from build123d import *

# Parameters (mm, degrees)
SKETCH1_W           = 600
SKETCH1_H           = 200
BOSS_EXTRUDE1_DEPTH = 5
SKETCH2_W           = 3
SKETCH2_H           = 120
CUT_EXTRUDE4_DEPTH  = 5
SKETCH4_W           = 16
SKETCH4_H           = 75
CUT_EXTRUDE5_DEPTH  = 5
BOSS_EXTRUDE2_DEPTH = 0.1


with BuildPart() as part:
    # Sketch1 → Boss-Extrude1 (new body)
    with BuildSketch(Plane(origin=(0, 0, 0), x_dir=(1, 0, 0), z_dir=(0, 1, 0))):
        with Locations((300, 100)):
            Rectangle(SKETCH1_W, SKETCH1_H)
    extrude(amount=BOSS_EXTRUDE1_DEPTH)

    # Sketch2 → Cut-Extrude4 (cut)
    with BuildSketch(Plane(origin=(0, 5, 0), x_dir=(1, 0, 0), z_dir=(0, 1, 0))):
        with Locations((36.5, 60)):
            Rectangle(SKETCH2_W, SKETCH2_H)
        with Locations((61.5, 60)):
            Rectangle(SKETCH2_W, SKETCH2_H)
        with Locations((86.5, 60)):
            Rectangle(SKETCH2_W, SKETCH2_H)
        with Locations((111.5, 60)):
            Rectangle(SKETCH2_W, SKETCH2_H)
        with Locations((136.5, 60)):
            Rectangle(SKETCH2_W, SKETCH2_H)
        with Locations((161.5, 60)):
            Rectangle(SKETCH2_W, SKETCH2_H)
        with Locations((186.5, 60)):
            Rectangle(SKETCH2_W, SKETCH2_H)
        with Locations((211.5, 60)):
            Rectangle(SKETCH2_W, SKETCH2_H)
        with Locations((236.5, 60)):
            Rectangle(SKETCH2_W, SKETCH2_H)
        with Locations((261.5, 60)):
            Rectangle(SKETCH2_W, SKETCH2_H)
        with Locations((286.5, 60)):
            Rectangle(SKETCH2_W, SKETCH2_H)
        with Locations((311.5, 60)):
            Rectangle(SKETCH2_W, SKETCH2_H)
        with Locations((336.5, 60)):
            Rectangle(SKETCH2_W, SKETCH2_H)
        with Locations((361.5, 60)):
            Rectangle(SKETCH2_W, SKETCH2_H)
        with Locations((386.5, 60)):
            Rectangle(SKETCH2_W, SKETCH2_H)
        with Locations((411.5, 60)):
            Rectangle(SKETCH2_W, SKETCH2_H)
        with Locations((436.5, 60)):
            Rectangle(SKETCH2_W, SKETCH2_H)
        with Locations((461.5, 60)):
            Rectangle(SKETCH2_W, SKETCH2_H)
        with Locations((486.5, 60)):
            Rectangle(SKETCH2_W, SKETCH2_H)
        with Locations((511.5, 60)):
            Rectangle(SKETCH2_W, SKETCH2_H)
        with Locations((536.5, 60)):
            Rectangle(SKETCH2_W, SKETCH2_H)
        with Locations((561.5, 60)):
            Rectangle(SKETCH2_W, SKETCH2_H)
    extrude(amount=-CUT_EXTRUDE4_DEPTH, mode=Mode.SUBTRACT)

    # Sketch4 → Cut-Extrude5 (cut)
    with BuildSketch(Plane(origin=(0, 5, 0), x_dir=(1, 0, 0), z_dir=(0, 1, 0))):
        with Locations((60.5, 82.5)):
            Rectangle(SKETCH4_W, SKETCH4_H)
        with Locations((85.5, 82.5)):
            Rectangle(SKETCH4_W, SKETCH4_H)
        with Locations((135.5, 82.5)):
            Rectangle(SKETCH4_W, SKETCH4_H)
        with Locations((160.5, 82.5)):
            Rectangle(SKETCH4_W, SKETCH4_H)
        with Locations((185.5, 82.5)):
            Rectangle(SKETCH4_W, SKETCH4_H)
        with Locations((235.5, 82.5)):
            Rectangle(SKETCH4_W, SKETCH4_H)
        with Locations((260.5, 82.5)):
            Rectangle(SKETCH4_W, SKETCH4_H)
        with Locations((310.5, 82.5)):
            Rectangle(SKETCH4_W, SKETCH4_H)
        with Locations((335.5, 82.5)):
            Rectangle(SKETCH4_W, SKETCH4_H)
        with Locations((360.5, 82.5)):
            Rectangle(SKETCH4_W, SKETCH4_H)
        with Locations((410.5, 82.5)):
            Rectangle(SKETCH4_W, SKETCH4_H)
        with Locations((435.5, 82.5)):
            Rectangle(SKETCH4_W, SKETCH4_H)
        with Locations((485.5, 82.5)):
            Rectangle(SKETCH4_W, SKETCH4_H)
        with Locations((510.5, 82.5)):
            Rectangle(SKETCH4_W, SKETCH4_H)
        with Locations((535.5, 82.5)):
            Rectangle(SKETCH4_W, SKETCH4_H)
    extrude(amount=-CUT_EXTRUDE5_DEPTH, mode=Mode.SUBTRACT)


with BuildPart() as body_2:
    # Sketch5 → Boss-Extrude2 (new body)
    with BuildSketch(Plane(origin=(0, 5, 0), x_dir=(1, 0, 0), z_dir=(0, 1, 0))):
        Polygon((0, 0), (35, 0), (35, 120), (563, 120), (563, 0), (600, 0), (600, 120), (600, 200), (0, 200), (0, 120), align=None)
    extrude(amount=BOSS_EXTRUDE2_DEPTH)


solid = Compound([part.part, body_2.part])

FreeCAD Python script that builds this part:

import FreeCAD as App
import Part
import Sketcher


def add_polygon(sketch, points):
    """Adds a closed chain of lines whose ends are joined by coincident constraints."""
    first, n = sketch.GeometryCount, len(points)
    for a, b in zip(points, points[1:] + points[:1]):
        sketch.addGeometry(Part.LineSegment(App.Vector(*a, 0), App.Vector(*b, 0)), False)
    for i in range(n):
        sketch.addConstraint(Sketcher.Constraint("Coincident", first + i, 2, first + (i + 1) % n, 1))

doc = App.newDocument("Part")
body = doc.addObject("PartDesign::Body", "Body")

# Sketch on XZ plane
sketch1 = body.newObject("Sketcher::SketchObject", "Sketch")
sketch1.AttachmentSupport = (doc.getObject("XZ_Plane"), [""])
sketch1.MapMode = "FlatFace"
add_polygon(sketch1, [(0, -200), (0, 0), (600, 0), (600, -200)])  # lines 0-3
sketch1.addConstraint(Sketcher.Constraint("Vertical", 0))
sketch1.addConstraint(Sketcher.Constraint("Horizontal", 1))
sketch1.addConstraint(Sketcher.Constraint("Vertical", 2))
sketch1.addConstraint(Sketcher.Constraint("Horizontal", 3))
sketch1.addConstraint(Sketcher.Constraint("Coincident", 0, 2, -1, 1))
sketch1.addConstraint(Sketcher.Constraint("DistanceX", 1, 1, 1, 2, 600.0))
sketch1.addConstraint(Sketcher.Constraint("DistanceY", 0, 1, 0, 2, 200.0))
pad1 = body.newObject("PartDesign::Pad", "Pad")
pad1.Profile = sketch1
pad1.Length = 5
pad1.Reversed = True

# Sketch on XZ plane
sketch2 = body.newObject("Sketcher::SketchObject", "Sketch001")
sketch2.AttachmentSupport = (doc.getObject("XZ_Plane"), [""])
sketch2.MapMode = "FlatFace"
sketch2.AttachmentOffset = App.Placement(App.Vector(0, 0, -5), App.Rotation())
add_polygon(sketch2, [(35, -120), (35, 0), (38, 0), (38, -120)])  # lines 0-3
add_polygon(sketch2, [(60, -120), (60, 0), (63, 0), (63, -120)])  # lines 4-7
add_polygon(sketch2, [(85, -120), (85, 0), (88, 0), (88, -120)])  # lines 8-11
add_polygon(sketch2, [(110, -120), (110, 0), (113, 0), (113, -120)])  # lines 12-15
add_polygon(sketch2, [(135, -120), (135, 0), (138, 0), (138, -120)])  # lines 16-19
add_polygon(sketch2, [(160, -120), (160, 0), (163, 0), (163, -120)])  # lines 20-23
add_polygon(sketch2, [(185, -120), (185, 0), (188, 0), (188, -120)])  # lines 24-27
add_polygon(sketch2, [(210, -120), (210, 0), (213, 0), (213, -120)])  # lines 28-31
add_polygon(sketch2, [(235, -120), (235, 0), (238, 0), (238, -120)])  # lines 32-35
add_polygon(sketch2, [(260, -120), (260, 0), (263, 0), (263, -120)])  # lines 36-39
add_polygon(sketch2, [(285, -120), (285, 0), (288, 0), (288, -120)])  # lines 40-43
add_polygon(sketch2, [(310, -120), (310, 0), (313, 0), (313, -120)])  # lines 44-47
add_polygon(sketch2, [(335, -120), (335, 0), (338, 0), (338, -120)])  # lines 48-51
add_polygon(sketch2, [(360, -120), (360, 0), (363, 0), (363, -120)])  # lines 52-55
add_polygon(sketch2, [(385, -120), (385, 0), (388, 0), (388, -120)])  # lines 56-59
add_polygon(sketch2, [(410, -120), (410, 0), (413, 0), (413, -120)])  # lines 60-63
add_polygon(sketch2, [(435, -120), (435, 0), (438, 0), (438, -120)])  # lines 64-67
add_polygon(sketch2, [(460, -120), (460, 0), (463, 0), (463, -120)])  # lines 68-71
add_polygon(sketch2, [(485, -120), (485, 0), (488, 0), (488, -120)])  # lines 72-75
add_polygon(sketch2, [(510, -120), (510, 0), (513, 0), (513, -120)])  # lines 76-79
add_polygon(sketch2, [(535, -120), (535, 0), (538, 0), (538, -120)])  # lines 80-83
add_polygon(sketch2, [(560, -120), (560, 0), (563, 0), (563, -120)])  # lines 84-87
sketch2.addConstraint(Sketcher.Constraint("Vertical", 0))
sketch2.addConstraint(Sketcher.Constraint("Horizontal", 1))
sketch2.addConstraint(Sketcher.Constraint("Vertical", 2))
sketch2.addConstraint(Sketcher.Constraint("Horizontal", 3))
sketch2.addConstraint(Sketcher.Constraint("Vertical", 4))
sketch2.addConstraint(Sketcher.Constraint("Horizontal", 5))
sketch2.addConstraint(Sketcher.Constraint("Vertical", 6))
sketch2.addConstraint(Sketcher.Constraint("Horizontal", 7))
sketch2.addConstraint(Sketcher.Constraint("Vertical", 8))
sketch2.addConstraint(Sketcher.Constraint("Horizontal", 9))
sketch2.addConstraint(Sketcher.Constraint("Vertical", 10))
sketch2.addConstraint(Sketcher.Constraint("Horizontal", 11))
sketch2.addConstraint(Sketcher.Constraint("Vertical", 12))
sketch2.addConstraint(Sketcher.Constraint("Horizontal", 13))
sketch2.addConstraint(Sketcher.Constraint("Vertical", 14))
sketch2.addConstraint(Sketcher.Constraint("Horizontal", 15))
sketch2.addConstraint(Sketcher.Constraint("Vertical", 16))
sketch2.addConstraint(Sketcher.Constraint("Horizontal", 17))
sketch2.addConstraint(Sketcher.Constraint("Vertical", 18))
sketch2.addConstraint(Sketcher.Constraint("Horizontal", 19))
sketch2.addConstraint(Sketcher.Constraint("Vertical", 20))
sketch2.addConstraint(Sketcher.Constraint("Horizontal", 21))
sketch2.addConstraint(Sketcher.Constraint("Vertical", 22))
sketch2.addConstraint(Sketcher.Constraint("Horizontal", 23))
sketch2.addConstraint(Sketcher.Constraint("Vertical", 24))
sketch2.addConstraint(Sketcher.Constraint("Horizontal", 25))
sketch2.addConstraint(Sketcher.Constraint("Vertical", 26))
sketch2.addConstraint(Sketcher.Constraint("Horizontal", 27))
sketch2.addConstraint(Sketcher.Constraint("Vertical", 28))
sketch2.addConstraint(Sketcher.Constraint("Horizontal", 29))
sketch2.addConstraint(Sketcher.Constraint("Vertical", 30))
sketch2.addConstraint(Sketcher.Constraint("Horizontal", 31))
sketch2.addConstraint(Sketcher.Constraint("Vertical", 32))
sketch2.addConstraint(Sketcher.Constraint("Horizontal", 33))
sketch2.addConstraint(Sketcher.Constraint("Vertical", 34))
sketch2.addConstraint(Sketcher.Constraint("Horizontal", 35))
sketch2.addConstraint(Sketcher.Constraint("Vertical", 36))
sketch2.addConstraint(Sketcher.Constraint("Horizontal", 37))
sketch2.addConstraint(Sketcher.Constraint("Vertical", 38))
sketch2.addConstraint(Sketcher.Constraint("Horizontal", 39))
sketch2.addConstraint(Sketcher.Constraint("Vertical", 40))
sketch2.addConstraint(Sketcher.Constraint("Horizontal", 41))
sketch2.addConstraint(Sketcher.Constraint("Vertical", 42))
sketch2.addConstraint(Sketcher.Constraint("Horizontal", 43))
sketch2.addConstraint(Sketcher.Constraint("Vertical", 44))
sketch2.addConstraint(Sketcher.Constraint("Horizontal", 45))
sketch2.addConstraint(Sketcher.Constraint("Vertical", 46))
sketch2.addConstraint(Sketcher.Constraint("Horizontal", 47))
sketch2.addConstraint(Sketcher.Constraint("Vertical", 48))
sketch2.addConstraint(Sketcher.Constraint("Horizontal", 49))
sketch2.addConstraint(Sketcher.Constraint("Vertical", 50))
sketch2.addConstraint(Sketcher.Constraint("Horizontal", 51))
sketch2.addConstraint(Sketcher.Constraint("Vertical", 52))
sketch2.addConstraint(Sketcher.Constraint("Horizontal", 53))
sketch2.addConstraint(Sketcher.Constraint("Vertical", 54))
sketch2.addConstraint(Sketcher.Constraint("Horizontal", 55))
sketch2.addConstraint(Sketcher.Constraint("Vertical", 56))
sketch2.addConstraint(Sketcher.Constraint("Horizontal", 57))
sketch2.addConstraint(Sketcher.Constraint("Vertical", 58))
sketch2.addConstraint(Sketcher.Constraint("Horizontal", 59))
sketch2.addConstraint(Sketcher.Constraint("Vertical", 60))
sketch2.addConstraint(Sketcher.Constraint("Horizontal", 61))
sketch2.addConstraint(Sketcher.Constraint("Vertical", 62))
sketch2.addConstraint(Sketcher.Constraint("Horizontal", 63))
sketch2.addConstraint(Sketcher.Constraint("Vertical", 64))
sketch2.addConstraint(Sketcher.Constraint("Horizontal", 65))
sketch2.addConstraint(Sketcher.Constraint("Vertical", 66))
sketch2.addConstraint(Sketcher.Constraint("Horizontal", 67))
sketch2.addConstraint(Sketcher.Constraint("Vertical", 68))
sketch2.addConstraint(Sketcher.Constraint("Horizontal", 69))
sketch2.addConstraint(Sketcher.Constraint("Vertical", 70))
sketch2.addConstraint(Sketcher.Constraint("Horizontal", 71))
sketch2.addConstraint(Sketcher.Constraint("Vertical", 72))
sketch2.addConstraint(Sketcher.Constraint("Horizontal", 73))
sketch2.addConstraint(Sketcher.Constraint("Vertical", 74))
sketch2.addConstraint(Sketcher.Constraint("Horizontal", 75))
sketch2.addConstraint(Sketcher.Constraint("Vertical", 76))
sketch2.addConstraint(Sketcher.Constraint("Horizontal", 77))
sketch2.addConstraint(Sketcher.Constraint("Vertical", 78))
sketch2.addConstraint(Sketcher.Constraint("Horizontal", 79))
sketch2.addConstraint(Sketcher.Constraint("Vertical", 80))
sketch2.addConstraint(Sketcher.Constraint("Horizontal", 81))
sketch2.addConstraint(Sketcher.Constraint("Vertical", 82))
sketch2.addConstraint(Sketcher.Constraint("Horizontal", 83))
sketch2.addConstraint(Sketcher.Constraint("Vertical", 84))
sketch2.addConstraint(Sketcher.Constraint("Horizontal", 85))
sketch2.addConstraint(Sketcher.Constraint("Vertical", 86))
sketch2.addConstraint(Sketcher.Constraint("Horizontal", 87))
sketch2.addConstraint(Sketcher.Constraint("PointOnObject", 0, 2, -1))
sketch2.addConstraint(Sketcher.Constraint("PointOnObject", 4, 2, -1))
sketch2.addConstraint(Sketcher.Constraint("PointOnObject", 8, 2, -1))
sketch2.addConstraint(Sketcher.Constraint("PointOnObject", 12, 2, -1))
sketch2.addConstraint(Sketcher.Constraint("PointOnObject", 16, 2, -1))
sketch2.addConstraint(Sketcher.Constraint("PointOnObject", 20, 2, -1))
sketch2.addConstraint(Sketcher.Constraint("PointOnObject", 24, 2, -1))
sketch2.addConstraint(Sketcher.Constraint("PointOnObject", 28, 2, -1))
sketch2.addConstraint(Sketcher.Constraint("PointOnObject", 32, 2, -1))
sketch2.addConstraint(Sketcher.Constraint("PointOnObject", 36, 2, -1))
sketch2.addConstraint(Sketcher.Constraint("PointOnObject", 40, 2, -1))
sketch2.addConstraint(Sketcher.Constraint("PointOnObject", 44, 2, -1))
sketch2.addConstraint(Sketcher.Constraint("PointOnObject", 48, 2, -1))
sketch2.addConstraint(Sketcher.Constraint("PointOnObject", 52, 2, -1))
sketch2.addConstraint(Sketcher.Constraint("PointOnObject", 56, 2, -1))
sketch2.addConstraint(Sketcher.Constraint("PointOnObject", 60, 2, -1))
sketch2.addConstraint(Sketcher.Constraint("PointOnObject", 64, 2, -1))
sketch2.addConstraint(Sketcher.Constraint("PointOnObject", 68, 2, -1))
sketch2.addConstraint(Sketcher.Constraint("PointOnObject", 72, 2, -1))
sketch2.addConstraint(Sketcher.Constraint("PointOnObject", 76, 2, -1))
sketch2.addConstraint(Sketcher.Constraint("PointOnObject", 80, 2, -1))
sketch2.addConstraint(Sketcher.Constraint("PointOnObject", 84, 2, -1))
sketch2.addConstraint(Sketcher.Constraint("Horizontal", 3, 2, 6, 2))
sketch2.addConstraint(Sketcher.Constraint("Horizontal", 7, 2, 10, 2))
sketch2.addConstraint(Sketcher.Constraint("Horizontal", 11, 2, 14, 2))
sketch2.addConstraint(Sketcher.Constraint("Horizontal", 15, 2, 18, 2))
sketch2.addConstraint(Sketcher.Constraint("Horizontal", 19, 2, 22, 2))
sketch2.addConstraint(Sketcher.Constraint("Horizontal", 23, 2, 26, 2))
sketch2.addConstraint(Sketcher.Constraint("Horizontal", 27, 2, 30, 2))
sketch2.addConstraint(Sketcher.Constraint("Horizontal", 31, 2, 34, 2))
sketch2.addConstraint(Sketcher.Constraint("Horizontal", 35, 2, 38, 2))
sketch2.addConstraint(Sketcher.Constraint("Horizontal", 39, 2, 42, 2))
sketch2.addConstraint(Sketcher.Constraint("Horizontal", 43, 2, 46, 2))
sketch2.addConstraint(Sketcher.Constraint("Horizontal", 47, 2, 50, 2))
sketch2.addConstraint(Sketcher.Constraint("Horizontal", 51, 2, 54, 2))
sketch2.addConstraint(Sketcher.Constraint("Horizontal", 55, 2, 58, 2))
sketch2.addConstraint(Sketcher.Constraint("Horizontal", 59, 2, 62, 2))
sketch2.addConstraint(Sketcher.Constraint("Horizontal", 63, 2, 66, 2))
sketch2.addConstraint(Sketcher.Constraint("Horizontal", 67, 2, 70, 2))
sketch2.addConstraint(Sketcher.Constraint("Horizontal", 71, 2, 74, 2))
sketch2.addConstraint(Sketcher.Constraint("Horizontal", 75, 2, 78, 2))
sketch2.addConstraint(Sketcher.Constraint("Horizontal", 79, 2, 82, 2))
sketch2.addConstraint(Sketcher.Constraint("Horizontal", 83, 2, 86, 2))
sketch2.addConstraint(Sketcher.Constraint("Equal", 3, 5))
sketch2.addConstraint(Sketcher.Constraint("Equal", 7, 9))
sketch2.addConstraint(Sketcher.Constraint("Equal", 11, 13))
sketch2.addConstraint(Sketcher.Constraint("Equal", 15, 17))
sketch2.addConstraint(Sketcher.Constraint("Equal", 19, 21))
sketch2.addConstraint(Sketcher.Constraint("Equal", 23, 25))
sketch2.addConstraint(Sketcher.Constraint("Equal", 27, 29))
sketch2.addConstraint(Sketcher.Constraint("Equal", 31, 33))
sketch2.addConstraint(Sketcher.Constraint("Equal", 35, 37))
sketch2.addConstraint(Sketcher.Constraint("Equal", 39, 41))
sketch2.addConstraint(Sketcher.Constraint("Equal", 43, 45))
sketch2.addConstraint(Sketcher.Constraint("Equal", 47, 49))
sketch2.addConstraint(Sketcher.Constraint("Equal", 51, 53))
sketch2.addConstraint(Sketcher.Constraint("Equal", 55, 57))
sketch2.addConstraint(Sketcher.Constraint("Equal", 59, 61))
sketch2.addConstraint(Sketcher.Constraint("Equal", 63, 65))
sketch2.addConstraint(Sketcher.Constraint("Equal", 67, 69))
sketch2.addConstraint(Sketcher.Constraint("Equal", 71, 73))
sketch2.addConstraint(Sketcher.Constraint("Equal", 75, 77))
sketch2.addConstraint(Sketcher.Constraint("Equal", 79, 81))
sketch2.addConstraint(Sketcher.Constraint("Equal", 83, 85))
sketch2.addConstraint(Sketcher.Constraint("DistanceX", 1, 1, 1, 2, 3.0))
sketch2.addConstraint(Sketcher.Constraint("DistanceY", 0, 1, 0, 2, 120.0))
sketch2.addConstraint(Sketcher.Constraint("DistanceX", -1, 1, 0, 2, 35.0))
sketch2.addConstraint(Sketcher.Constraint("DistanceX", -1, 1, 4, 2, 60.0))
sketch2.addConstraint(Sketcher.Constraint("DistanceX", -1, 1, 8, 2, 85.0))
sketch2.addConstraint(Sketcher.Constraint("DistanceX", -1, 1, 12, 2, 110.0))
sketch2.addConstraint(Sketcher.Constraint("DistanceX", -1, 1, 16, 2, 135.0))
sketch2.addConstraint(Sketcher.Constraint("DistanceX", -1, 1, 20, 2, 160.0))
sketch2.addConstraint(Sketcher.Constraint("DistanceX", -1, 1, 24, 2, 185.0))
sketch2.addConstraint(Sketcher.Constraint("DistanceX", -1, 1, 28, 2, 210.0))
sketch2.addConstraint(Sketcher.Constraint("DistanceX", -1, 1, 32, 2, 235.0))
sketch2.addConstraint(Sketcher.Constraint("DistanceX", -1, 1, 36, 2, 260.0))
sketch2.addConstraint(Sketcher.Constraint("DistanceX", -1, 1, 40, 2, 285.0))
sketch2.addConstraint(Sketcher.Constraint("DistanceX", -1, 1, 44, 2, 310.0))
sketch2.addConstraint(Sketcher.Constraint("DistanceX", -1, 1, 48, 2, 335.0))
sketch2.addConstraint(Sketcher.Constraint("DistanceX", -1, 1, 52, 2, 360.0))
sketch2.addConstraint(Sketcher.Constraint("DistanceX", -1, 1, 56, 2, 385.0))
sketch2.addConstraint(Sketcher.Constraint("DistanceX", -1, 1, 60, 2, 410.0))
sketch2.addConstraint(Sketcher.Constraint("DistanceX", -1, 1, 64, 2, 435.0))
sketch2.addConstraint(Sketcher.Constraint("DistanceX", -1, 1, 68, 2, 460.0))
sketch2.addConstraint(Sketcher.Constraint("DistanceX", -1, 1, 72, 2, 485.0))
sketch2.addConstraint(Sketcher.Constraint("DistanceX", -1, 1, 76, 2, 510.0))
sketch2.addConstraint(Sketcher.Constraint("DistanceX", -1, 1, 80, 2, 535.0))
sketch2.addConstraint(Sketcher.Constraint("DistanceX", -1, 1, 84, 2, 560.0))
pocket1 = body.newObject("PartDesign::Pocket", "Pocket")
pocket1.Profile = sketch2
pocket1.Length = 5
pocket1.Reversed = True

# Sketch on XZ plane
sketch3 = body.newObject("Sketcher::SketchObject", "Sketch002")
sketch3.AttachmentSupport = (doc.getObject("XZ_Plane"), [""])
sketch3.MapMode = "FlatFace"
sketch3.AttachmentOffset = App.Placement(App.Vector(0, 0, -5), App.Rotation())
add_polygon(sketch3, [(52, -120), (52, -45), (68, -45), (68, -120)])  # lines 0-3
add_polygon(sketch3, [(78, -120), (78, -45), (94, -45), (94, -120)])  # lines 4-7
add_polygon(sketch3, [(128, -120), (128, -45), (144, -45), (144, -120)])  # lines 8-11
add_polygon(sketch3, [(152, -120), (152, -45), (168, -45), (168, -120)])  # lines 12-15
add_polygon(sketch3, [(178, -120), (178, -45), (194, -45), (194, -120)])  # lines 16-19
add_polygon(sketch3, [(228, -120), (228, -45), (244, -45), (244, -120)])  # lines 20-23
add_polygon(sketch3, [(252, -120), (252, -45), (268, -45), (268, -120)])  # lines 24-27
add_polygon(sketch3, [(302, -120), (302, -45), (318, -45), (318, -120)])  # lines 28-31
add_polygon(sketch3, [(328, -120), (328, -45), (344, -45), (344, -120)])  # lines 32-35
add_polygon(sketch3, [(352, -120), (352, -45), (368, -45), (368, -120)])  # lines 36-39
add_polygon(sketch3, [(402, -120), (402, -45), (418, -45), (418, -120)])  # lines 40-43
add_polygon(sketch3, [(428, -120), (428, -45), (444, -45), (444, -120)])  # lines 44-47
add_polygon(sketch3, [(478, -120), (478, -45), (494, -45), (494, -120)])  # lines 48-51
add_polygon(sketch3, [(502, -120), (502, -45), (518, -45), (518, -120)])  # lines 52-55
add_polygon(sketch3, [(528, -120), (528, -45), (544, -45), (544, -120)])  # lines 56-59
sketch3.addConstraint(Sketcher.Constraint("Vertical", 0))
sketch3.addConstraint(Sketcher.Constraint("Horizontal", 1))
sketch3.addConstraint(Sketcher.Constraint("Vertical", 2))
sketch3.addConstraint(Sketcher.Constraint("Horizontal", 3))
sketch3.addConstraint(Sketcher.Constraint("Vertical", 4))
sketch3.addConstraint(Sketcher.Constraint("Horizontal", 5))
sketch3.addConstraint(Sketcher.Constraint("Vertical", 6))
sketch3.addConstraint(Sketcher.Constraint("Horizontal", 7))
sketch3.addConstraint(Sketcher.Constraint("Vertical", 8))
sketch3.addConstraint(Sketcher.Constraint("Horizontal", 9))
sketch3.addConstraint(Sketcher.Constraint("Vertical", 10))
sketch3.addConstraint(Sketcher.Constraint("Horizontal", 11))
sketch3.addConstraint(Sketcher.Constraint("Vertical", 12))
sketch3.addConstraint(Sketcher.Constraint("Horizontal", 13))
sketch3.addConstraint(Sketcher.Constraint("Vertical", 14))
sketch3.addConstraint(Sketcher.Constraint("Horizontal", 15))
sketch3.addConstraint(Sketcher.Constraint("Vertical", 16))
sketch3.addConstraint(Sketcher.Constraint("Horizontal", 17))
sketch3.addConstraint(Sketcher.Constraint("Vertical", 18))
sketch3.addConstraint(Sketcher.Constraint("Horizontal", 19))
sketch3.addConstraint(Sketcher.Constraint("Vertical", 20))
sketch3.addConstraint(Sketcher.Constraint("Horizontal", 21))
sketch3.addConstraint(Sketcher.Constraint("Vertical", 22))
sketch3.addConstraint(Sketcher.Constraint("Horizontal", 23))
sketch3.addConstraint(Sketcher.Constraint("Vertical", 24))
sketch3.addConstraint(Sketcher.Constraint("Horizontal", 25))
sketch3.addConstraint(Sketcher.Constraint("Vertical", 26))
sketch3.addConstraint(Sketcher.Constraint("Horizontal", 27))
sketch3.addConstraint(Sketcher.Constraint("Vertical", 28))
sketch3.addConstraint(Sketcher.Constraint("Horizontal", 29))
sketch3.addConstraint(Sketcher.Constraint("Vertical", 30))
sketch3.addConstraint(Sketcher.Constraint("Horizontal", 31))
sketch3.addConstraint(Sketcher.Constraint("Vertical", 32))
sketch3.addConstraint(Sketcher.Constraint("Horizontal", 33))
sketch3.addConstraint(Sketcher.Constraint("Vertical", 34))
sketch3.addConstraint(Sketcher.Constraint("Horizontal", 35))
sketch3.addConstraint(Sketcher.Constraint("Vertical", 36))
sketch3.addConstraint(Sketcher.Constraint("Horizontal", 37))
sketch3.addConstraint(Sketcher.Constraint("Vertical", 38))
sketch3.addConstraint(Sketcher.Constraint("Horizontal", 39))
sketch3.addConstraint(Sketcher.Constraint("Vertical", 40))
sketch3.addConstraint(Sketcher.Constraint("Horizontal", 41))
sketch3.addConstraint(Sketcher.Constraint("Vertical", 42))
sketch3.addConstraint(Sketcher.Constraint("Horizontal", 43))
sketch3.addConstraint(Sketcher.Constraint("Vertical", 44))
sketch3.addConstraint(Sketcher.Constraint("Horizontal", 45))
sketch3.addConstraint(Sketcher.Constraint("Vertical", 46))
sketch3.addConstraint(Sketcher.Constraint("Horizontal", 47))
sketch3.addConstraint(Sketcher.Constraint("Vertical", 48))
sketch3.addConstraint(Sketcher.Constraint("Horizontal", 49))
sketch3.addConstraint(Sketcher.Constraint("Vertical", 50))
sketch3.addConstraint(Sketcher.Constraint("Horizontal", 51))
sketch3.addConstraint(Sketcher.Constraint("Vertical", 52))
sketch3.addConstraint(Sketcher.Constraint("Horizontal", 53))
sketch3.addConstraint(Sketcher.Constraint("Vertical", 54))
sketch3.addConstraint(Sketcher.Constraint("Horizontal", 55))
sketch3.addConstraint(Sketcher.Constraint("Vertical", 56))
sketch3.addConstraint(Sketcher.Constraint("Horizontal", 57))
sketch3.addConstraint(Sketcher.Constraint("Vertical", 58))
sketch3.addConstraint(Sketcher.Constraint("Horizontal", 59))
sketch3.addConstraint(Sketcher.Constraint("Horizontal", 1, 2, 4, 2))
sketch3.addConstraint(Sketcher.Constraint("Horizontal", 3, 2, 6, 2))
sketch3.addConstraint(Sketcher.Constraint("Horizontal", 5, 2, 8, 2))
sketch3.addConstraint(Sketcher.Constraint("Horizontal", 7, 2, 10, 2))
sketch3.addConstraint(Sketcher.Constraint("Horizontal", 9, 2, 12, 2))
sketch3.addConstraint(Sketcher.Constraint("Horizontal", 11, 2, 14, 2))
sketch3.addConstraint(Sketcher.Constraint("Horizontal", 13, 2, 16, 2))
sketch3.addConstraint(Sketcher.Constraint("Horizontal", 15, 2, 18, 2))
sketch3.addConstraint(Sketcher.Constraint("Horizontal", 17, 2, 20, 2))
sketch3.addConstraint(Sketcher.Constraint("Horizontal", 19, 2, 22, 2))
sketch3.addConstraint(Sketcher.Constraint("Horizontal", 21, 2, 24, 2))
sketch3.addConstraint(Sketcher.Constraint("Horizontal", 23, 2, 26, 2))
sketch3.addConstraint(Sketcher.Constraint("Horizontal", 25, 2, 28, 2))
sketch3.addConstraint(Sketcher.Constraint("Horizontal", 27, 2, 30, 2))
sketch3.addConstraint(Sketcher.Constraint("Horizontal", 29, 2, 32, 2))
sketch3.addConstraint(Sketcher.Constraint("Horizontal", 31, 2, 34, 2))
sketch3.addConstraint(Sketcher.Constraint("Horizontal", 33, 2, 36, 2))
sketch3.addConstraint(Sketcher.Constraint("Horizontal", 35, 2, 38, 2))
sketch3.addConstraint(Sketcher.Constraint("Horizontal", 37, 2, 40, 2))
sketch3.addConstraint(Sketcher.Constraint("Horizontal", 39, 2, 42, 2))
sketch3.addConstraint(Sketcher.Constraint("Horizontal", 41, 2, 44, 2))
sketch3.addConstraint(Sketcher.Constraint("Horizontal", 43, 2, 46, 2))
sketch3.addConstraint(Sketcher.Constraint("Horizontal", 45, 2, 48, 2))
sketch3.addConstraint(Sketcher.Constraint("Horizontal", 47, 2, 50, 2))
sketch3.addConstraint(Sketcher.Constraint("Horizontal", 49, 2, 52, 2))
sketch3.addConstraint(Sketcher.Constraint("Horizontal", 51, 2, 54, 2))
sketch3.addConstraint(Sketcher.Constraint("Horizontal", 53, 2, 56, 2))
sketch3.addConstraint(Sketcher.Constraint("Horizontal", 55, 2, 58, 2))
sketch3.addConstraint(Sketcher.Constraint("Equal", 3, 5))
sketch3.addConstraint(Sketcher.Constraint("Equal", 7, 9))
sketch3.addConstraint(Sketcher.Constraint("Equal", 11, 13))
sketch3.addConstraint(Sketcher.Constraint("Equal", 15, 17))
sketch3.addConstraint(Sketcher.Constraint("Equal", 19, 21))
sketch3.addConstraint(Sketcher.Constraint("Equal", 23, 25))
sketch3.addConstraint(Sketcher.Constraint("Equal", 27, 29))
sketch3.addConstraint(Sketcher.Constraint("Equal", 31, 33))
sketch3.addConstraint(Sketcher.Constraint("Equal", 35, 37))
sketch3.addConstraint(Sketcher.Constraint("Equal", 39, 41))
sketch3.addConstraint(Sketcher.Constraint("Equal", 43, 45))
sketch3.addConstraint(Sketcher.Constraint("Equal", 47, 49))
sketch3.addConstraint(Sketcher.Constraint("Equal", 51, 53))
sketch3.addConstraint(Sketcher.Constraint("Equal", 55, 57))
sketch3.addConstraint(Sketcher.Constraint("DistanceX", 1, 1, 1, 2, 16.0))
sketch3.addConstraint(Sketcher.Constraint("DistanceY", 0, 1, 0, 2, 75.0))
sketch3.addConstraint(Sketcher.Constraint("DistanceY", 0, 2, -1, 1, 45.0))
sketch3.addConstraint(Sketcher.Constraint("DistanceX", 1, 2, 4, 2, 9.0))
sketch3.addConstraint(Sketcher.Constraint("DistanceX", 5, 2, 8, 2, 34.0))
sketch3.addConstraint(Sketcher.Constraint("DistanceX", 9, 2, 12, 2, 9.0))
sketch3.addConstraint(Sketcher.Constraint("DistanceX", 13, 2, 16, 2, 9.0))
sketch3.addConstraint(Sketcher.Constraint("DistanceX", 17, 2, 20, 2, 34.0))
sketch3.addConstraint(Sketcher.Constraint("DistanceX", 21, 2, 24, 2, 9.0))
sketch3.addConstraint(Sketcher.Constraint("DistanceX", 25, 2, 28, 2, 34.0))
sketch3.addConstraint(Sketcher.Constraint("DistanceX", 29, 2, 32, 2, 9.0))
sketch3.addConstraint(Sketcher.Constraint("DistanceX", 33, 2, 36, 2, 9.0))
sketch3.addConstraint(Sketcher.Constraint("DistanceX", 37, 2, 40, 2, 34.0))
sketch3.addConstraint(Sketcher.Constraint("DistanceX", 41, 2, 44, 2, 9.0))
sketch3.addConstraint(Sketcher.Constraint("DistanceX", 45, 2, 48, 2, 34.0))
sketch3.addConstraint(Sketcher.Constraint("DistanceX", 49, 2, 52, 2, 9.0))
sketch3.addConstraint(Sketcher.Constraint("DistanceX", 53, 2, 56, 2, 9.0))
sketch3.addConstraint(Sketcher.Constraint("DistanceX", -1, 1, 0, 2, 52.5))
pocket2 = body.newObject("PartDesign::Pocket", "Pocket001")
pocket2.Profile = sketch3
pocket2.Length = 5
pocket2.Reversed = True
body2 = doc.addObject("PartDesign::Body", "Body001")

# Sketch on XZ plane
sketch4 = body2.newObject("Sketcher::SketchObject", "Sketch003")
sketch4.AttachmentSupport = (doc.getObject("XZ_Plane001"), [""])
sketch4.MapMode = "FlatFace"
sketch4.AttachmentOffset = App.Placement(App.Vector(0, 0, -5), App.Rotation())
add_polygon(sketch4, [(0, 0), (35, 0), (35, -120), (563, -120), (563, 0), (600, 0), (600, -200), (0, -200)])  # lines 0-7
sketch4.addConstraint(Sketcher.Constraint("Horizontal", 0))
sketch4.addConstraint(Sketcher.Constraint("Vertical", 1))
sketch4.addConstraint(Sketcher.Constraint("Horizontal", 2))
sketch4.addConstraint(Sketcher.Constraint("Vertical", 3))
sketch4.addConstraint(Sketcher.Constraint("Horizontal", 4))
sketch4.addConstraint(Sketcher.Constraint("Vertical", 5))
sketch4.addConstraint(Sketcher.Constraint("Horizontal", 6))
sketch4.addConstraint(Sketcher.Constraint("Vertical", 7))
sketch4.addConstraint(Sketcher.Constraint("Coincident", 7, 2, -1, 1))
sketch4.addConstraint(Sketcher.Constraint("PointOnObject", 3, 2, -1))
sketch4.addConstraint(Sketcher.Constraint("DistanceX", 0, 1, 0, 2, 35.0))
sketch4.addConstraint(Sketcher.Constraint("DistanceX", 2, 1, 2, 2, 528.0))
sketch4.addConstraint(Sketcher.Constraint("DistanceX", 4, 1, 4, 2, 37.0))
sketch4.addConstraint(Sketcher.Constraint("DistanceY", 1, 2, 1, 1, 120.0))
sketch4.addConstraint(Sketcher.Constraint("DistanceY", 5, 2, 5, 1, 200.0))
pad2 = body2.newObject("PartDesign::Pad", "Pad001")
pad2.Profile = sketch4
pad2.Length = 0.1
pad2.Reversed = True

doc.recompute()
